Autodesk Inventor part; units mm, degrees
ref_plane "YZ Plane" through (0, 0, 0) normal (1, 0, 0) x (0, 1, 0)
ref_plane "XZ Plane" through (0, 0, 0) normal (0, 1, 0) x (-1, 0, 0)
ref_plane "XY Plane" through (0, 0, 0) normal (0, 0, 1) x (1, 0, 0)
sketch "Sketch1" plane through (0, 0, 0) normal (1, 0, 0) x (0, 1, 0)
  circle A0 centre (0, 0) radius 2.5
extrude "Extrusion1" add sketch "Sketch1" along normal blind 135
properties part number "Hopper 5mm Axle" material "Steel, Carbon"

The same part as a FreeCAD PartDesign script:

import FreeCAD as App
import Part
import Sketcher
from FreeCAD import Vector
Q = App.Units.Quantity

doc = App.newDocument("Part")
body = doc.addObject("PartDesign::Body", "Body")

# Sketch on YZ plane
sketch1 = doc.addObject("Sketcher::SketchObject", "Sketch")
body.addObject(sketch1)
sketch1.AttachmentSupport = (doc.YZ_Plane, [""])
sketch1.MapMode = "FlatFace"
sketch1.addGeometry(Part.Circle(Vector(0, 0, 0), Vector(0, 0, 1), 2.5), False)
sketch1.addConstraint(Sketcher.Constraint("Coincident", 0, 3, -1, 1))
sketch1.addConstraint(Sketcher.Constraint("Diameter", 0, Q("5 mm")))
pad1 = doc.addObject("PartDesign::Pad", "Pad")
body.addObject(pad1)
pad1.Profile = sketch1
pad1.Length = 135

doc.recompute()
